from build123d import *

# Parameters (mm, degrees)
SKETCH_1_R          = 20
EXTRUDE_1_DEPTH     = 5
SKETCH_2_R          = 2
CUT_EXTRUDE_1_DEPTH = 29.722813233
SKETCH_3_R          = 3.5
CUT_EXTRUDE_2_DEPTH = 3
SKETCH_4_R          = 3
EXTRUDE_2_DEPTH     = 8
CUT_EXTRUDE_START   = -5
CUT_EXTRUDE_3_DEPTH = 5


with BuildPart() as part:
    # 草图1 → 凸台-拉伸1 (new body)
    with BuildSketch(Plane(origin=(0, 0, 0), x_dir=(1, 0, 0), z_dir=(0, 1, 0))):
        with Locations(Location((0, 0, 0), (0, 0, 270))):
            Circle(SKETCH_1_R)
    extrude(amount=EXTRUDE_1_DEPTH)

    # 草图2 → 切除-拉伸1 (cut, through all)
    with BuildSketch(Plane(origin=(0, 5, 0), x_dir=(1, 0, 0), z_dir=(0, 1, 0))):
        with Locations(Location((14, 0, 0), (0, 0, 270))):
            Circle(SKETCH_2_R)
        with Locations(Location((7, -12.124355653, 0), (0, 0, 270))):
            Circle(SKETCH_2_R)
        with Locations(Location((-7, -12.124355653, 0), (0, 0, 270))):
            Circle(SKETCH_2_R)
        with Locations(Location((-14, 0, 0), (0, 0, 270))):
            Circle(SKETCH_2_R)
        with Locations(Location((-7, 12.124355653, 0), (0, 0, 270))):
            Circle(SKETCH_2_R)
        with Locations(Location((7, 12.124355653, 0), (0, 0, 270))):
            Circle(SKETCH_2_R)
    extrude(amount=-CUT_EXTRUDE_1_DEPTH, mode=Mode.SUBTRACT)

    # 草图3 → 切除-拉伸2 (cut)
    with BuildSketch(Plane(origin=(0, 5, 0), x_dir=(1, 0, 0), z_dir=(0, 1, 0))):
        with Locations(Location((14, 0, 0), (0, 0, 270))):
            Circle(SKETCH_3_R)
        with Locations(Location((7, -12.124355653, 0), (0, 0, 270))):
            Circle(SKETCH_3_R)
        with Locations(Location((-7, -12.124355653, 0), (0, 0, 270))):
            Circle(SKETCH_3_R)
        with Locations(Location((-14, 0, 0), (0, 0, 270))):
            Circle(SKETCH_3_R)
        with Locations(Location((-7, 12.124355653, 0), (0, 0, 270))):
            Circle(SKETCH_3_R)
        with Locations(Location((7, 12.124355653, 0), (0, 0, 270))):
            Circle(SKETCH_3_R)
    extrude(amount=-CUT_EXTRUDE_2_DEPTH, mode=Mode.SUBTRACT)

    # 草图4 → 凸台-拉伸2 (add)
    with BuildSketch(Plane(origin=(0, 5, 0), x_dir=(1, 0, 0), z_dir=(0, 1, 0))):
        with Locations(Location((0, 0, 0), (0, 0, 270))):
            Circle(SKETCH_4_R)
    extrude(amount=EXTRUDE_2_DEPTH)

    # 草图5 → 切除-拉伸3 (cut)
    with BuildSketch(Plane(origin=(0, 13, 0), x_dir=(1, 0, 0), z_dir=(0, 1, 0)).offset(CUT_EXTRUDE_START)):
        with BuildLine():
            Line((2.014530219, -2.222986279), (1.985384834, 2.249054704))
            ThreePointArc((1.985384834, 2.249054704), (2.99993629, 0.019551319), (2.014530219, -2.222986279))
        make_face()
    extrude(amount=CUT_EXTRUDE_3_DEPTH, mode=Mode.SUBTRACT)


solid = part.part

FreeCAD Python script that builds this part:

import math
import FreeCAD as App
import Part
import Sketcher
from FreeCAD import Vector

doc = App.newDocument("Part")
params = doc.addObject("Spreadsheet::Sheet", "Params")
for row, (alias, value) in enumerate([
    ("sketch1_diameter", "40 mm"),
    ("pad1_length", "5 mm"),
    ("sketch2_diameter", "4 mm"),
    ("sketch3_diameter", "7 mm"),
    ("pocket2_length", "3 mm"),
    ("sketch4_diameter", "6 mm"),
    ("pad2_length", "8 mm"),
    ("sketch5_radius", "3 mm"),
    ("pocket3_length", "5 mm"),
], start=1):
    params.set(f"A{row}", alias)
    params.set(f"B{row}", "=" + value)
    params.setAlias(f"B{row}", alias)

body = doc.addObject("PartDesign::Body", "Body")

# Sketch on XZ plane
sketch1 = doc.addObject("Sketcher::SketchObject", "Sketch")
body.addObject(sketch1)
sketch1.AttachmentSupport = (doc.XZ_Plane, [""])
sketch1.MapMode = "FlatFace"
sketch1.addGeometry(Part.Circle(Vector(0, 0, 0), Vector(0, 0, 1), 20), False)
sketch1.addConstraint([
    Sketcher.Constraint("Coincident", 0, 3, -1, 1),
    Sketcher.Constraint("Diameter", 0, 40.0),
])
sketch1.setExpression("Constraints[1]", "Params.sketch1_diameter")
pad1 = doc.addObject("PartDesign::Pad", "Pad")
body.addObject(pad1)
pad1.Profile = sketch1
pad1.setExpression("Length", "Params.pad1_length")
pad1.Reversed = True

# Sketch on XZ plane
sketch2 = doc.addObject("Sketcher::SketchObject", "Sketch001")
body.addObject(sketch2)
sketch2.AttachmentSupport = (doc.XZ_Plane, [""])
sketch2.MapMode = "FlatFace"
sketch2.AttachmentOffset = App.Placement(Vector(0, 0, -5), App.Rotation())
sketch2.addGeometry([
    Part.Circle(Vector(14, 0, 0), Vector(0, 0, 1), 2),  # 0
    Part.Circle(Vector(7, 12.1, 0), Vector(0, 0, 1), 2),  # 1
    Part.Circle(Vector(-7, 12.1, 0), Vector(0, 0, 1), 2),  # 2
    Part.Circle(Vector(-14, 0, 0), Vector(0, 0, 1), 2),  # 3
    Part.Circle(Vector(-7, -12.1, 0), Vector(0, 0, 1), 2),  # 4
    Part.Circle(Vector(7, -12.1, 0), Vector(0, 0, 1), 2),  # 5
], False)
sketch2.addConstraint([
    Sketcher.Constraint("Equal", 0, 1),
    Sketcher.Constraint("Equal", 1, 2),
    Sketcher.Constraint("Equal", 2, 3),
    Sketcher.Constraint("Equal", 3, 4),
    Sketcher.Constraint("Equal", 4, 5),
    Sketcher.Constraint("Symmetric", 0, 3, 3, 3, -1, 1),
    Sketcher.Constraint("Symmetric", 1, 3, 4, 3, -1, 1),
    Sketcher.Constraint("Symmetric", 2, 3, 5, 3, -1, 1),
    Sketcher.Constraint("Symmetric", 1, 3, 2, 3, -2),
    Sketcher.Constraint("PointOnObject", 0, 3, -1),
    Sketcher.Constraint("Diameter", 0, 4.0),
    Sketcher.Constraint("DistanceX", -1, 1, 0, 3, 14.0),
    Sketcher.Constraint("DistanceX", -1, 1, 1, 3, 7.0),
    Sketcher.Constraint("DistanceY", 4, 3, 2, 3, 24.248711),
])
sketch2.setExpression("Constraints[10]", "Params.sketch2_diameter")
pocket1 = doc.addObject("PartDesign::Pocket", "Pocket")
body.addObject(pocket1)
pocket1.Profile = sketch2
pocket1.Type = "ThroughAll"
pocket1.Reversed = True

# Sketch on XZ plane
sketch3 = doc.addObject("Sketcher::SketchObject", "Sketch002")
body.addObject(sketch3)
sketch3.AttachmentSupport = (doc.XZ_Plane, [""])
sketch3.MapMode = "FlatFace"
sketch3.AttachmentOffset = App.Placement(Vector(0, 0, -5), App.Rotation())
sketch3.addGeometry([
    Part.Circle(Vector(14, 0, 0), Vector(0, 0, 1), 3.5),  # 0
    Part.Circle(Vector(7, 12.1, 0), Vector(0, 0, 1), 3.5),  # 1
    Part.Circle(Vector(-7, 12.1, 0), Vector(0, 0, 1), 3.5),  # 2
    Part.Circle(Vector(-14, 0, 0), Vector(0, 0, 1), 3.5),  # 3
    Part.Circle(Vector(-7, -12.1, 0), Vector(0, 0, 1), 3.5),  # 4
    Part.Circle(Vector(7, -12.1, 0), Vector(0, 0, 1), 3.5),  # 5
], False)
sketch3.addConstraint([
    Sketcher.Constraint("Equal", 0, 1),
    Sketcher.Constraint("Equal", 1, 2),
    Sketcher.Constraint("Equal", 2, 3),
    Sketcher.Constraint("Equal", 3, 4),
    Sketcher.Constraint("Equal", 4, 5),
    Sketcher.Constraint("Symmetric", 0, 3, 3, 3, -1, 1),
    Sketcher.Constraint("Symmetric", 1, 3, 4, 3, -1, 1),
    Sketcher.Constraint("Symmetric", 2, 3, 5, 3, -1, 1),
    Sketcher.Constraint("Symmetric", 1, 3, 2, 3, -2),
    Sketcher.Constraint("PointOnObject", 0, 3, -1),
    Sketcher.Constraint("Diameter", 0, 7.0),
    Sketcher.Constraint("DistanceX", -1, 1, 0, 3, 14.0),
    Sketcher.Constraint("DistanceX", -1, 1, 1, 3, 7.0),
    Sketcher.Constraint("DistanceY", 4, 3, 2, 3, 24.248711),
])
sketch3.setExpression("Constraints[10]", "Params.sketch3_diameter")
pocket2 = doc.addObject("PartDesign::Pocket", "Pocket001")
body.addObject(pocket2)
pocket2.Profile = sketch3
pocket2.setExpression("Length", "Params.pocket2_length")
pocket2.Reversed = True

# Sketch on XZ plane
sketch4 = doc.addObject("Sketcher::SketchObject", "Sketch003")
body.addObject(sketch4)
sketch4.AttachmentSupport = (doc.XZ_Plane, [""])
sketch4.MapMode = "FlatFace"
sketch4.AttachmentOffset = App.Placement(Vector(0, 0, -5), App.Rotation())
sketch4.addGeometry(Part.Circle(Vector(0, 0, 0), Vector(0, 0, 1), 3), False)
sketch4.addConstraint([
    Sketcher.Constraint("Coincident", 0, 3, -1, 1),
    Sketcher.Constraint("Diameter", 0, 6.0),
])
sketch4.setExpression("Constraints[1]", "Params.sketch4_diameter")
pad2 = doc.addObject("PartDesign::Pad", "Pad001")
body.addObject(pad2)
pad2.Profile = sketch4
pad2.setExpression("Length", "Params.pad2_length")
pad2.Reversed = True

# Sketch on XZ plane
sketch5 = doc.addObject("Sketcher::SketchObject", "Sketch004")
body.addObject(sketch5)
sketch5.AttachmentSupport = (doc.XZ_Plane, [""])
sketch5.MapMode = "FlatFace"
sketch5.AttachmentOffset = App.Placement(Vector(0, 0, -8), App.Rotation())
sketch5.addGeometry([
    Part.LineSegment(Vector(2, -2.2, 0), Vector(2, 2.2, 0)),
    Part.ArcOfCircle(Part.Circle(Vector(0, 0, 0), Vector(0, 0, 1), 3), math.radians(-49), math.radians(48)),
], False)
sketch5.addConstraint([
    Sketcher.Constraint("Coincident", 0, 1, 1, 1),
    Sketcher.Constraint("Coincident", 1, 2, 0, 2),
    Sketcher.Constraint("Coincident", 1, 3, -1, 1),
    Sketcher.Constraint("Radius", 1, 3.0),
    Sketcher.Constraint("DistanceX", -1, 1, 1, 2, 2.01453),
    Sketcher.Constraint("DistanceY", 0, 1, 1, 2, 4.472041),
])
sketch5.setExpression("Constraints[3]", "Params.sketch5_radius")
pocket3 = doc.addObject("PartDesign::Pocket", "Pocket002")
body.addObject(pocket3)
pocket3.Profile = sketch5
pocket3.setExpression("Length", "Params.pocket3_length")

doc.recompute()
